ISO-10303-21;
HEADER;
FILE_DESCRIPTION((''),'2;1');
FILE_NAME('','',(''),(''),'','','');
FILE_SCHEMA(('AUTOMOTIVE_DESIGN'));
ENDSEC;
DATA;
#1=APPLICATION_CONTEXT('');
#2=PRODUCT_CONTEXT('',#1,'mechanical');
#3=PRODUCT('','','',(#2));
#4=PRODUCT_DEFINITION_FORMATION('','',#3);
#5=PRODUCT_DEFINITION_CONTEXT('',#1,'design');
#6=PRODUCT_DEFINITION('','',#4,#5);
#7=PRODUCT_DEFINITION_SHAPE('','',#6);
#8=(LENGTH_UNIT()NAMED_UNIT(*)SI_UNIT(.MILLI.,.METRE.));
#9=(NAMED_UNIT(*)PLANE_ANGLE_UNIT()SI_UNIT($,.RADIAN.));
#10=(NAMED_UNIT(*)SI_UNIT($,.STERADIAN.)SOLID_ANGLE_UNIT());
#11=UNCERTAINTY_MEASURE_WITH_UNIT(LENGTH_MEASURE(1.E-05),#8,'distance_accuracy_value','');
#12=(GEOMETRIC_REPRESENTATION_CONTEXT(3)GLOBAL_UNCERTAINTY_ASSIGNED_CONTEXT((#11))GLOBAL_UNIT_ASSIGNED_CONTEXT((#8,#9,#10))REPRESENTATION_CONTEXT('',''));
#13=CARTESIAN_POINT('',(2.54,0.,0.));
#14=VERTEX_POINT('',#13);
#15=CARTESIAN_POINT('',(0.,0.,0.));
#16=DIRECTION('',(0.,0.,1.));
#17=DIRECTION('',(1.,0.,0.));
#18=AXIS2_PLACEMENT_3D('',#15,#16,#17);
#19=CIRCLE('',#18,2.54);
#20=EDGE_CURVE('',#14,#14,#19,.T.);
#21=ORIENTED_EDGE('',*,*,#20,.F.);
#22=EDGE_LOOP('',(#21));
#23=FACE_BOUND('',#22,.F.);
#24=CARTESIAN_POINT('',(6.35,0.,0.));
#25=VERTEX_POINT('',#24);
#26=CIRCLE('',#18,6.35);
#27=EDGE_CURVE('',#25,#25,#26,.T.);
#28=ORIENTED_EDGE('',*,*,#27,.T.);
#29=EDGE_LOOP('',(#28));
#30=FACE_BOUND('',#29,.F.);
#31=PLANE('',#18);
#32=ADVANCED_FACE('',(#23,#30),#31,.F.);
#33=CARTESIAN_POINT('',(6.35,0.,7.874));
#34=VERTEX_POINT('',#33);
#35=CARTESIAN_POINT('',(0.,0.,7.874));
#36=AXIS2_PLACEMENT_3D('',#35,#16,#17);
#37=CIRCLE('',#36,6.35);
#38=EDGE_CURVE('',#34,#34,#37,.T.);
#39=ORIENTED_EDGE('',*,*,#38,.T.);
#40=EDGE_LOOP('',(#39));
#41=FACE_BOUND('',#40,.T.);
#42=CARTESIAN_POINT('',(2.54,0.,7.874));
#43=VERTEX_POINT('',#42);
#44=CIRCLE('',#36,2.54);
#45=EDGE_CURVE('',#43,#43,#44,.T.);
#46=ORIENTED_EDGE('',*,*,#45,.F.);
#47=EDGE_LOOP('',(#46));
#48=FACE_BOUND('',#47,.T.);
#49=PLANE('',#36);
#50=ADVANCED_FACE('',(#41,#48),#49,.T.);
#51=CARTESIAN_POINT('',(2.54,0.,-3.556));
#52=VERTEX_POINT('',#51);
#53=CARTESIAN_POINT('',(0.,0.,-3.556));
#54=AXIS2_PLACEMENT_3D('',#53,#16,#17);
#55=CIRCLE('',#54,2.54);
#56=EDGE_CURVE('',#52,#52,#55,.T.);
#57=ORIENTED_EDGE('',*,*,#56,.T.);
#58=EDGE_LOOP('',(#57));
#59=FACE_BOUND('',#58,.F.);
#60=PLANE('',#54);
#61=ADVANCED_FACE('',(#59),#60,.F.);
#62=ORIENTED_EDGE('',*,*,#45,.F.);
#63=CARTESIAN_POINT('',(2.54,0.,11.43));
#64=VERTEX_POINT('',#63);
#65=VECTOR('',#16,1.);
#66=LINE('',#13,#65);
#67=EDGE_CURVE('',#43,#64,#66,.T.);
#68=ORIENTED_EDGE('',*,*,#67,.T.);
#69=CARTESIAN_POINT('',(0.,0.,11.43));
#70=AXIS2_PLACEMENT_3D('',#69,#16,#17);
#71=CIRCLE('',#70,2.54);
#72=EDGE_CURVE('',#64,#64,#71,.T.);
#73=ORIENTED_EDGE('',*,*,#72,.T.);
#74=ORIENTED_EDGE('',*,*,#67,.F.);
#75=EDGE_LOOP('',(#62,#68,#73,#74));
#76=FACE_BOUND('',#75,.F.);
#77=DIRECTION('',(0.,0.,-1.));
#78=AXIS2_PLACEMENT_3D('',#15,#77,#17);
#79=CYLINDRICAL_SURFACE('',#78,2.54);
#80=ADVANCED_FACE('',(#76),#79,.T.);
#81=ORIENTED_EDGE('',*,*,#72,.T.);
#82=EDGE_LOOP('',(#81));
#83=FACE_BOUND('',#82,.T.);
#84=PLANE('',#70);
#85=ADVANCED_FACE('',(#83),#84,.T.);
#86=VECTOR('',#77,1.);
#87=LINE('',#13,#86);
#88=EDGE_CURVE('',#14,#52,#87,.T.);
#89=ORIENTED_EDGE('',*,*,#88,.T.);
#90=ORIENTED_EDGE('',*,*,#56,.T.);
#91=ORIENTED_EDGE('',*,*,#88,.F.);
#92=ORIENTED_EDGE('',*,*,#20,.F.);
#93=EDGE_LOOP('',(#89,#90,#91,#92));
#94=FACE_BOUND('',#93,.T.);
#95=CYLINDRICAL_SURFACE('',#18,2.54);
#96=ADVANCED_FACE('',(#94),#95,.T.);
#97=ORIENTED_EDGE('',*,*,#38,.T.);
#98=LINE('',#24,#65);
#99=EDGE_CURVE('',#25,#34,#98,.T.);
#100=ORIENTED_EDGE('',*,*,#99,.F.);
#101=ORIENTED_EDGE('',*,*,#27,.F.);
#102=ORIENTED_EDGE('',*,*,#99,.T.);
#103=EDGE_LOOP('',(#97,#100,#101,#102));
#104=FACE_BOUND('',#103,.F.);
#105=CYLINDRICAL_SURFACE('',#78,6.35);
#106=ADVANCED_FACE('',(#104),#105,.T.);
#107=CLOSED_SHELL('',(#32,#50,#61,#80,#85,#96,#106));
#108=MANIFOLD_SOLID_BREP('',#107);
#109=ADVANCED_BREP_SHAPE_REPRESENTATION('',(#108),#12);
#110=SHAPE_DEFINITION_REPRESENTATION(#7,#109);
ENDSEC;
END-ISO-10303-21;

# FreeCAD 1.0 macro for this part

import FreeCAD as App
import Part
import Sketcher
Q = App.Units.Quantity

doc = App.newDocument("Part")
body = doc.addObject("PartDesign::Body", "Body")

# Sketch on XY plane
sketch1 = body.newObject("Sketcher::SketchObject", "Sketch")
sketch1.AttachmentSupport = (doc.getObject("XY_Plane"), [""])
sketch1.MapMode = "FlatFace"
sketch1.addGeometry([
    Part.Circle(App.Vector(0, 0, 0), App.Vector(0, 0, 1), 6.3),
    Part.Circle(App.Vector(0, 0, 0), App.Vector(0, 0, 1), 2.5),
], False)
sketch1.addConstraint([
    Sketcher.Constraint("Coincident", 0, 3, -1, 1),
    Sketcher.Constraint("Coincident", 1, 3, -1, 1),
    Sketcher.Constraint("Diameter", 0, Q("0.5 in")),
    Sketcher.Constraint("Diameter", 1, Q("0.2 in")),
])
pad1 = body.newObject("PartDesign::Pad", "Pad")
pad1.Profile = sketch1
pad1.Length = Q("0.31 in")

# Sketch on XY plane
sketch2 = body.newObject("Sketcher::SketchObject", "Sketch001")
sketch2.AttachmentSupport = (doc.getObject("XY_Plane"), [""])
sketch2.MapMode = "FlatFace"
sketch2.addGeometry(Part.Circle(App.Vector(0, 0, 0), App.Vector(0, 0, 1), 2.5), False)
sketch2.addConstraint([
    Sketcher.Constraint("Coincident", 0, 3, -1, 1),
    Sketcher.Constraint("Diameter", 0, Q("0.2 in")),
])
pad2 = body.newObject("PartDesign::Pad", "Pad001")
pad2.Profile = sketch2
pad2.Length = Q("0.45 in")

# Sketch on XY plane
sketch3 = body.newObject("Sketcher::SketchObject", "Sketch002")
sketch3.AttachmentSupport = (doc.getObject("XY_Plane"), [""])
sketch3.MapMode = "FlatFace"
sketch3.addGeometry(Part.Circle(App.Vector(0, 0, 0), App.Vector(0, 0, 1), 2.5), False)
sketch3.addConstraint([
    Sketcher.Constraint("Coincident", 0, 3, -1, 1),
    Sketcher.Constraint("Diameter", 0, Q("0.2 in")),
])
pad3 = body.newObject("PartDesign::Pad", "Pad002")
pad3.Profile = sketch3
pad3.Length = Q("0.14 in")
pad3.Reversed = True

doc.recompute()
